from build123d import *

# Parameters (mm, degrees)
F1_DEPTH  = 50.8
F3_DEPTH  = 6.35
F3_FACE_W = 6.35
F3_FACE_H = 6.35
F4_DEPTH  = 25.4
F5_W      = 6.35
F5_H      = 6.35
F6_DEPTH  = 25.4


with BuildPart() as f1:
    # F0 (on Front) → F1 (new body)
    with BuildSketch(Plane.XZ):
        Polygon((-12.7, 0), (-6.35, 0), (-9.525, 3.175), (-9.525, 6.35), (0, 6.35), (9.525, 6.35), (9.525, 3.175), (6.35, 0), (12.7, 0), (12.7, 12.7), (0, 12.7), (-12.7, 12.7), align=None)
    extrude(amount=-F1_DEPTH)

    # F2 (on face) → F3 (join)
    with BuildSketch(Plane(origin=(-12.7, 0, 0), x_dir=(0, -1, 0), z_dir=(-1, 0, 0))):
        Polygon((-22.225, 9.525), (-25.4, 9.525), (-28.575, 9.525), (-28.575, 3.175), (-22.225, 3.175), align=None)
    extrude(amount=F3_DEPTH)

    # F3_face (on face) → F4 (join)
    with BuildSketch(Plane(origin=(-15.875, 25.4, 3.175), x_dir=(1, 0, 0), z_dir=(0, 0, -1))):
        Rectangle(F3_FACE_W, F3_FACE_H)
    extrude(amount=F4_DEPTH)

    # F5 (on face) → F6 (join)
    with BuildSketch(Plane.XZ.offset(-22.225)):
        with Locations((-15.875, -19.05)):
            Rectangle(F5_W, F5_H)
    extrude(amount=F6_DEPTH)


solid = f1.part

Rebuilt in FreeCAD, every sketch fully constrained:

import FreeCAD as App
import Part
import Sketcher
from FreeCAD import Vector
Q = App.Units.Quantity

doc = App.newDocument("Part")
params = doc.addObject("Spreadsheet::Sheet", "Params")
for row, (alias, value) in enumerate([
    ("sketch1_width", "1 in"),
    ("sketch1_height", "0.5 in"),
    ("sketch1_width2", "0.25 in"),
    ("sketch1_width3", "0.75 in"),
    ("sketch1_height2", "0.125 in"),
    ("pad1_length", "2 in"),
    ("sketch2_width", "0.25 in"),
    ("pad2_length", "0.25 in"),
    ("sketch3_width", "0.25 in"),
    ("pad3_length", "1 in"),
    ("sketch4_width", "0.25 in"),
    ("pad4_length", "1 in"),
], start=1):
    params.set(f"A{row}", alias)
    params.set(f"B{row}", "=" + value)
    params.setAlias(f"B{row}", alias)

body = doc.addObject("PartDesign::Body", "Body")

# Sketch on XZ plane
sketch1 = doc.addObject("Sketcher::SketchObject", "Sketch")
body.addObject(sketch1)
sketch1.AttachmentSupport = (doc.XZ_Plane, [""])
sketch1.MapMode = "FlatFace"
sketch1.addGeometry(Part.LineSegment(Vector(-12.7, 0, 0), Vector(-6.3, 0, 0)), False)
sketch1.addGeometry(Part.LineSegment(Vector(-6.3, 0, 0), Vector(-9.5, 3.2, 0)), False)
sketch1.addGeometry(Part.LineSegment(Vector(-9.5, 3.2, 0), Vector(-9.5, 6.3, 0)), False)
sketch1.addGeometry(Part.LineSegment(Vector(-9.5, 6.3, 0), Vector(9.5, 6.3, 0)), False)
sketch1.addGeometry(Part.LineSegment(Vector(9.5, 6.3, 0), Vector(9.5, 3.2, 0)), False)
sketch1.addGeometry(Part.LineSegment(Vector(9.5, 3.2, 0), Vector(6.3, 0, 0)), False)
sketch1.addGeometry(Part.LineSegment(Vector(6.3, 0, 0), Vector(12.7, 0, 0)), False)
sketch1.addGeometry(Part.LineSegment(Vector(12.7, 0, 0), Vector(12.7, 12.7, 0)), False)
sketch1.addGeometry(Part.LineSegment(Vector(12.7, 12.7, 0), Vector(-12.7, 12.7, 0)), False)
sketch1.addGeometry(Part.LineSegment(Vector(-12.7, 12.7, 0), Vector(-12.7, 0, 0)), False)
sketch1.addConstraint(Sketcher.Constraint("Coincident", 0, 2, 1, 1))
sketch1.addConstraint(Sketcher.Constraint("Coincident", 1, 2, 2, 1))
sketch1.addConstraint(Sketcher.Constraint("Coincident", 2, 2, 3, 1))
sketch1.addConstraint(Sketcher.Constraint("Coincident", 3, 2, 4, 1))
sketch1.addConstraint(Sketcher.Constraint("Coincident", 4, 2, 5, 1))
sketch1.addConstraint(Sketcher.Constraint("Coincident", 5, 2, 6, 1))
sketch1.addConstraint(Sketcher.Constraint("Coincident", 6, 2, 7, 1))
sketch1.addConstraint(Sketcher.Constraint("Coincident", 7, 2, 8, 1))
sketch1.addConstraint(Sketcher.Constraint("Coincident", 8, 2, 9, 1))
sketch1.addConstraint(Sketcher.Constraint("Coincident", 9, 2, 0, 1))
sketch1.addConstraint(Sketcher.Constraint("Horizontal", 0))
sketch1.addConstraint(Sketcher.Constraint("Vertical", 2))
sketch1.addConstraint(Sketcher.Constraint("Horizontal", 3))
sketch1.addConstraint(Sketcher.Constraint("Vertical", 4))
sketch1.addConstraint(Sketcher.Constraint("Horizontal", 6))
sketch1.addConstraint(Sketcher.Constraint("Vertical", 7))
sketch1.addConstraint(Sketcher.Constraint("Horizontal", 8))
sketch1.addConstraint(Sketcher.Constraint("Vertical", 9))
sketch1.addConstraint(Sketcher.Constraint("Symmetric", 0, 2, 5, 2, -1, 1))
sketch1.addConstraint(Sketcher.Constraint("Symmetric", 1, 2, 4, 2, -2))
sketch1.addConstraint(Sketcher.Constraint("Symmetric", 6, 2, 9, 2, -2))
sketch1.addConstraint(Sketcher.Constraint("Perpendicular", 1, 5))
sketch1.addConstraint(Sketcher.Constraint("DistanceX", 8, 2, 8, 1, Q("1 in")))
sketch1.addConstraint(Sketcher.Constraint("DistanceY", 7, 1, 7, 2, Q("0.5 in")))
sketch1.addConstraint(Sketcher.Constraint("DistanceX", 0, 1, 0, 2, Q("0.25 in")))
sketch1.addConstraint(Sketcher.Constraint("DistanceX", 3, 1, 3, 2, Q("0.75 in")))
sketch1.addConstraint(Sketcher.Constraint("DistanceY", 2, 1, 2, 2, Q("0.125 in")))
sketch1.setExpression("Constraints[22]", "Params.sketch1_width")
sketch1.setExpression("Constraints[23]", "Params.sketch1_height")
sketch1.setExpression("Constraints[24]", "Params.sketch1_width2")
sketch1.setExpression("Constraints[25]", "Params.sketch1_width3")
sketch1.setExpression("Constraints[26]", "Params.sketch1_height2")
pad1 = doc.addObject("PartDesign::Pad", "Pad")
body.addObject(pad1)
pad1.Profile = sketch1
pad1.setExpression("Length", "Params.pad1_length")
pad1.Reversed = True

# Sketch on YZ plane
sketch2 = doc.addObject("Sketcher::SketchObject", "Sketch001")
body.addObject(sketch2)
sketch2.AttachmentSupport = (doc.YZ_Plane, [""])
sketch2.MapMode = "FlatFace"
sketch2.AttachmentOffset = App.Placement(Vector(0, 0, -0.5 * 25.4), App.Rotation())
sketch2.addGeometry(Part.LineSegment(Vector(22, 10, 0), Vector(29, 10, 0)), False)
sketch2.addGeometry(Part.LineSegment(Vector(29, 10, 0), Vector(29, 3, 0)), False)
sketch2.addGeometry(Part.LineSegment(Vector(29, 3, 0), Vector(22, 3, 0)), False)
sketch2.addGeometry(Part.LineSegment(Vector(22, 3, 0), Vector(22, 10, 0)), False)
sketch2.addConstraint(Sketcher.Constraint("Coincident", 0, 2, 1, 1))
sketch2.addConstraint(Sketcher.Constraint("Coincident", 1, 2, 2, 1))
sketch2.addConstraint(Sketcher.Constraint("Coincident", 2, 2, 3, 1))
sketch2.addConstraint(Sketcher.Constraint("Coincident", 3, 2, 0, 1))
sketch2.addConstraint(Sketcher.Constraint("Horizontal", 0))
sketch2.addConstraint(Sketcher.Constraint("Vertical", 1))
sketch2.addConstraint(Sketcher.Constraint("Horizontal", 2))
sketch2.addConstraint(Sketcher.Constraint("Vertical", 3))
sketch2.addConstraint(Sketcher.Constraint("Equal", 2, 1))
sketch2.addConstraint(Sketcher.Constraint("DistanceX", 0, 1, 0, 2, Q("0.25 in")))
sketch2.addConstraint(Sketcher.Constraint("DistanceX", -1, 1, 0, 2, Q("1.125 in")))
sketch2.addConstraint(Sketcher.Constraint("DistanceY", -1, 1, 0, 2, Q("0.375 in")))
sketch2.setExpression("Constraints[9]", "Params.sketch2_width")
pad2 = doc.addObject("PartDesign::Pad", "Pad001")
body.addObject(pad2)
pad2.Profile = sketch2
pad2.setExpression("Length", "Params.pad2_length")
pad2.Reversed = True

# Sketch on XY plane
sketch3 = doc.addObject("Sketcher::SketchObject", "Sketch002")
body.addObject(sketch3)
sketch3.AttachmentSupport = (doc.XY_Plane, [""])
sketch3.MapMode = "FlatFace"
sketch3.AttachmentOffset = App.Placement(Vector(0, 0, 0.125 * 25.4), App.Rotation())
sketch3.addGeometry(Part.LineSegment(Vector(-19, 22, 0), Vector(-19, 29, 0)), False)
sketch3.addGeometry(Part.LineSegment(Vector(-19, 29, 0), Vector(-13, 29, 0)), False)
sketch3.addGeometry(Part.LineSegment(Vector(-13, 29, 0), Vector(-13, 22, 0)), False)
sketch3.addGeometry(Part.LineSegment(Vector(-13, 22, 0), Vector(-19, 22, 0)), False)
sketch3.addConstraint(Sketcher.Constraint("Coincident", 0, 2, 1, 1))
sketch3.addConstraint(Sketcher.Constraint("Coincident", 1, 2, 2, 1))
sketch3.addConstraint(Sketcher.Constraint("Coincident", 2, 2, 3, 1))
sketch3.addConstraint(Sketcher.Constraint("Coincident", 3, 2, 0, 1))
sketch3.addConstraint(Sketcher.Constraint("Vertical", 0))
sketch3.addConstraint(Sketcher.Constraint("Horizontal", 1))
sketch3.addConstraint(Sketcher.Constraint("Vertical", 2))
sketch3.addConstraint(Sketcher.Constraint("Horizontal", 3))
sketch3.addConstraint(Sketcher.Constraint("Equal", 3, 0))
sketch3.addConstraint(Sketcher.Constraint("DistanceX", 1, 1, 1, 2, Q("0.25 in")))
sketch3.addConstraint(Sketcher.Constraint("DistanceX", 1, 2, -1, 1, Q("0.5 in")))
sketch3.addConstraint(Sketcher.Constraint("DistanceY", -1, 1, 0, 2, Q("1.125 in")))
sketch3.setExpression("Constraints[9]", "Params.sketch3_width")
pad3 = doc.addObject("PartDesign::Pad", "Pad002")
body.addObject(pad3)
pad3.Profile = sketch3
pad3.setExpression("Length", "Params.pad3_length")
pad3.Reversed = True

# Sketch on XZ plane
sketch4 = doc.addObject("Sketcher::SketchObject", "Sketch003")
body.addObject(sketch4)
sketch4.AttachmentSupport = (doc.XZ_Plane, [""])
sketch4.MapMode = "FlatFace"
sketch4.AttachmentOffset = App.Placement(Vector(0, 0, -0.875 * 25.4), App.Rotation())
sketch4.addGeometry(Part.LineSegment(Vector(-19, -16, 0), Vector(-19, -22, 0)), False)
sketch4.addGeometry(Part.LineSegment(Vector(-19, -22, 0), Vector(-13, -22, 0)), False)
sketch4.addGeometry(Part.LineSegment(Vector(-13, -22, 0), Vector(-13, -16, 0)), False)
sketch4.addGeometry(Part.LineSegment(Vector(-13, -16, 0), Vector(-19, -16, 0)), False)
sketch4.addConstraint(Sketcher.Constraint("Coincident", 0, 2, 1, 1))
sketch4.addConstraint(Sketcher.Constraint("Coincident", 1, 2, 2, 1))
sketch4.addConstraint(Sketcher.Constraint("Coincident", 2, 2, 3, 1))
sketch4.addConstraint(Sketcher.Constraint("Coincident", 3, 2, 0, 1))
sketch4.addConstraint(Sketcher.Constraint("Vertical", 0))
sketch4.addConstraint(Sketcher.Constraint("Horizontal", 1))
sketch4.addConstraint(Sketcher.Constraint("Vertical", 2))
sketch4.addConstraint(Sketcher.Constraint("Horizontal", 3))
sketch4.addConstraint(Sketcher.Constraint("Equal", 3, 0))
sketch4.addConstraint(Sketcher.Constraint("DistanceX", 1, 1, 1, 2, Q("0.25 in")))
sketch4.addConstraint(Sketcher.Constraint("DistanceX", 1, 2, -1, 1, Q("0.5 in")))
sketch4.addConstraint(Sketcher.Constraint("DistanceY", 0, 2, -1, 1, Q("0.875 in")))
sketch4.setExpression("Constraints[9]", "Params.sketch4_width")
pad4 = doc.addObject("PartDesign::Pad", "Pad003")
body.addObject(pad4)
pad4.Profile = sketch4
pad4.setExpression("Length", "Params.pad4_length")

doc.recompute()
